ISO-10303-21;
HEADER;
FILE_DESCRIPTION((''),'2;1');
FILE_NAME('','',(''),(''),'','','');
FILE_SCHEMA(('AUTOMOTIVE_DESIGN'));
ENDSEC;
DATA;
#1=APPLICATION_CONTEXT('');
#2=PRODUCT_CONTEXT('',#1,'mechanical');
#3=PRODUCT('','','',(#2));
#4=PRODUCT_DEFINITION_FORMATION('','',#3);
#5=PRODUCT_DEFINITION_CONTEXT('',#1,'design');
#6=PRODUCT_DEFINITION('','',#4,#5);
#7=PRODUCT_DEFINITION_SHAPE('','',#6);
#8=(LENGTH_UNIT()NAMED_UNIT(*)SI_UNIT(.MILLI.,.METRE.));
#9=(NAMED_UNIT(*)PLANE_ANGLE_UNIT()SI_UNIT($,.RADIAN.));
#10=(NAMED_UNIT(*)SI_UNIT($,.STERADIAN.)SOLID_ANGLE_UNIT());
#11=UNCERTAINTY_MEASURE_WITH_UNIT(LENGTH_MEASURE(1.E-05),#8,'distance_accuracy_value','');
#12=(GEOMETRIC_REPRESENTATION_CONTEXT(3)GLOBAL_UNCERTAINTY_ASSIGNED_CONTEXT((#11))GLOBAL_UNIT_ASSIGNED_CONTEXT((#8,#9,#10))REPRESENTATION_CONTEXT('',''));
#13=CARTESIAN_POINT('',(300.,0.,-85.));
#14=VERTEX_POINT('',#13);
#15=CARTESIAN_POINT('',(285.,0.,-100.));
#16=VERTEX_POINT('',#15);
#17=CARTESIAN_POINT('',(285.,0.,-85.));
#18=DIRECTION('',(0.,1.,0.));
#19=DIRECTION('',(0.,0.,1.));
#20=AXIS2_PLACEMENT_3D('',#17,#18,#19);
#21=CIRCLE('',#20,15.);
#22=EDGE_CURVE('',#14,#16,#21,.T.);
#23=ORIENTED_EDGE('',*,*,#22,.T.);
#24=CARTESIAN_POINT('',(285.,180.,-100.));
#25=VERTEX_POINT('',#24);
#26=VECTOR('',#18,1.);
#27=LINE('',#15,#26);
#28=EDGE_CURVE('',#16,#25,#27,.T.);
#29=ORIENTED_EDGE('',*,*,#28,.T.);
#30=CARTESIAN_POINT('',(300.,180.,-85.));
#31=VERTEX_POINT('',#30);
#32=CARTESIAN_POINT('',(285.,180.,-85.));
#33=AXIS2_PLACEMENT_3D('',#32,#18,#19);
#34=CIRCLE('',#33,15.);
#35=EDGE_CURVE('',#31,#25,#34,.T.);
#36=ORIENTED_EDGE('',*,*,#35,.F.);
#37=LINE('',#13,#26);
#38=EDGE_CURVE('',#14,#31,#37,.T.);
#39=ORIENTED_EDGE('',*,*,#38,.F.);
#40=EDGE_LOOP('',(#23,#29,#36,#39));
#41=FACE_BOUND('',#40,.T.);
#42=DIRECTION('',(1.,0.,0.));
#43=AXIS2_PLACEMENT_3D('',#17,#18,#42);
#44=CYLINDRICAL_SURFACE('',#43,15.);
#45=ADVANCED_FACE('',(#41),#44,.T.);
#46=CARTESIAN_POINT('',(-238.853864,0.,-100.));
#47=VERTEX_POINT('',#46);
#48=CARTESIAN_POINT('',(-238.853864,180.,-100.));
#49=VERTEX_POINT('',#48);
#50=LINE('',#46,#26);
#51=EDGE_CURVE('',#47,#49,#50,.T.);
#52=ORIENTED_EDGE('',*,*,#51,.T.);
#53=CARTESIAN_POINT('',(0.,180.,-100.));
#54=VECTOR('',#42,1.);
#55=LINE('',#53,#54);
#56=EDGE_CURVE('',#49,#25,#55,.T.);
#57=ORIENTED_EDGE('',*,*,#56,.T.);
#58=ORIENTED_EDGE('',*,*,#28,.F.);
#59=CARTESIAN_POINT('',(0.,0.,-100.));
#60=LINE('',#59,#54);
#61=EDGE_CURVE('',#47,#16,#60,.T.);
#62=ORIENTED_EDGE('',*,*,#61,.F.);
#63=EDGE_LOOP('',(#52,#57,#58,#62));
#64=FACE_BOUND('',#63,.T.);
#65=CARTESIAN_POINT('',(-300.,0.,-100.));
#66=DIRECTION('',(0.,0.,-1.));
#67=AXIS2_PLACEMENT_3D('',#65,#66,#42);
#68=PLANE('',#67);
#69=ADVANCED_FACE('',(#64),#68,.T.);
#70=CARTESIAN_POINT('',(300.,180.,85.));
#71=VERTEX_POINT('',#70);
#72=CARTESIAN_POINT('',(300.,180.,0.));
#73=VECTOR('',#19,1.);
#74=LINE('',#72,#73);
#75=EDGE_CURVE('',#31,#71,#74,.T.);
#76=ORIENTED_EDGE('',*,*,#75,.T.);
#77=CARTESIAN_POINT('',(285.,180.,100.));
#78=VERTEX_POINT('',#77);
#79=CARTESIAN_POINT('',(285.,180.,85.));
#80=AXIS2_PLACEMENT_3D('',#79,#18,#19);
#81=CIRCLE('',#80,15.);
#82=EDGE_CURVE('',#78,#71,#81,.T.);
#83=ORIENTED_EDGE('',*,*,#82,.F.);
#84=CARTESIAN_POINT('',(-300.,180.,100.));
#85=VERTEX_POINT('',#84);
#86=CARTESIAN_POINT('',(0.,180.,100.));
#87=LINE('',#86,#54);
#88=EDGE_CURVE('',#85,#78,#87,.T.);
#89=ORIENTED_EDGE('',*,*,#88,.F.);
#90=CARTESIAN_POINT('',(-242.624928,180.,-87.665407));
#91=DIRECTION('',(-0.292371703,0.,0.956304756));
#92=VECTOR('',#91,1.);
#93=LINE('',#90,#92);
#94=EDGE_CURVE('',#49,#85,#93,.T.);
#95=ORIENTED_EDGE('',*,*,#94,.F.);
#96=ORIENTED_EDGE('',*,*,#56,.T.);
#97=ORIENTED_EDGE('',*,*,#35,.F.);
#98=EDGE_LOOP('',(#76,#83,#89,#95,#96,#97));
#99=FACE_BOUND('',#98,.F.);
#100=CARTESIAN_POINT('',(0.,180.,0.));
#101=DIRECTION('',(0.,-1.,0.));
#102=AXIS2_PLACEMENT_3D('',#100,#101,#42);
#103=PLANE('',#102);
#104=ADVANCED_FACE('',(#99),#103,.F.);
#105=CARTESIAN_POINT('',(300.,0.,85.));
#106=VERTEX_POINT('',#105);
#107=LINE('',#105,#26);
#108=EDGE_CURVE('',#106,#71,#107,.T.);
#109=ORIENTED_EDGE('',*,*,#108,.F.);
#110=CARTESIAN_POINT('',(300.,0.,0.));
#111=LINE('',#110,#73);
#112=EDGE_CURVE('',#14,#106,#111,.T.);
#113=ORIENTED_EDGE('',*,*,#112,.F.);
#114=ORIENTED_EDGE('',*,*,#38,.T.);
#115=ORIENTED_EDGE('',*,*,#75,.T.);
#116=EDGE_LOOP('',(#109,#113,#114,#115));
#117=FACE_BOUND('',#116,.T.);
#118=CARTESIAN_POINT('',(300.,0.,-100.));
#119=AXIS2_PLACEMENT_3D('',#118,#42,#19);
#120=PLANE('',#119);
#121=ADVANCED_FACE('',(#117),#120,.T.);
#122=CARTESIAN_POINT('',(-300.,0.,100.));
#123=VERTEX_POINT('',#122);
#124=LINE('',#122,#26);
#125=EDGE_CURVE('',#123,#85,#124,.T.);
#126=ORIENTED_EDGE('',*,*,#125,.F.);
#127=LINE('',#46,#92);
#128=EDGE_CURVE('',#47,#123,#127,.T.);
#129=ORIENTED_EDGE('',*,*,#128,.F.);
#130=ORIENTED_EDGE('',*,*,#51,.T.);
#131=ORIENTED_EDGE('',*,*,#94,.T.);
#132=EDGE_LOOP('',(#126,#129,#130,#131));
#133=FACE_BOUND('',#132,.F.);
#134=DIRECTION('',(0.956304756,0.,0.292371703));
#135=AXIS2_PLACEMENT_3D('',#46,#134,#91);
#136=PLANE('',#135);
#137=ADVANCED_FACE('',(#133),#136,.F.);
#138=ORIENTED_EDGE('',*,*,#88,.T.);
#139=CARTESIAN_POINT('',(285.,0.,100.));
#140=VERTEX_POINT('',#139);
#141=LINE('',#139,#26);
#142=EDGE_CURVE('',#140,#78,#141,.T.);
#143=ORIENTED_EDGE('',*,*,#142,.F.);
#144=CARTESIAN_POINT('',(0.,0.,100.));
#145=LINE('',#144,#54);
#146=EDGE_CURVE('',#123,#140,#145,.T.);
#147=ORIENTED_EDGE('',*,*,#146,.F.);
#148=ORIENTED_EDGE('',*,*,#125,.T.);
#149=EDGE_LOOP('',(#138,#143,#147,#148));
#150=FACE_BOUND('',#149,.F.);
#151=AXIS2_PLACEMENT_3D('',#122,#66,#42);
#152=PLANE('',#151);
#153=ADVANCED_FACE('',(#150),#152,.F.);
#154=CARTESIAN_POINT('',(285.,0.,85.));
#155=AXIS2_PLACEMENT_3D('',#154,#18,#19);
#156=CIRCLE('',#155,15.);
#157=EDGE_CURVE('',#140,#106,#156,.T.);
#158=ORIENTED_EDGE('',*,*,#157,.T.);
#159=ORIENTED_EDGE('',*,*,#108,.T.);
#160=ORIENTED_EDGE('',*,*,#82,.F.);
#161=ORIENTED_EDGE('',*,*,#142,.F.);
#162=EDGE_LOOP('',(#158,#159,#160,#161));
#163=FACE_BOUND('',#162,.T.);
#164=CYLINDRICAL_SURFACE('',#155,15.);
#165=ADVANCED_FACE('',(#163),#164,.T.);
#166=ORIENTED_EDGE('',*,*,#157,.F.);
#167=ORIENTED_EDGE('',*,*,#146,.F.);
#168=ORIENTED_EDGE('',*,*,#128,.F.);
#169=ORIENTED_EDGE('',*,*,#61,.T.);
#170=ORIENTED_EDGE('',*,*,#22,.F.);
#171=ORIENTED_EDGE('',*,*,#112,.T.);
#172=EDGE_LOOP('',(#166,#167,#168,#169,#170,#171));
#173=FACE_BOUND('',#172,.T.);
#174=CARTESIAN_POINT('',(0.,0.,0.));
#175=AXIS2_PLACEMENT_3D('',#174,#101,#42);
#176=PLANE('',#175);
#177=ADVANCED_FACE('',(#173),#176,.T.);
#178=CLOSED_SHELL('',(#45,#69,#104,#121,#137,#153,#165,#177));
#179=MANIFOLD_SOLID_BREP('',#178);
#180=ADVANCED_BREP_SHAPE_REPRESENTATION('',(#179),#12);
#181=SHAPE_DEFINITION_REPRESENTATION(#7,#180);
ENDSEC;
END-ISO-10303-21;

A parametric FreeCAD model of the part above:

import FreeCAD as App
import Part
import Sketcher

V = App.Vector
Q = App.Units.Quantity


def edges_at(feature, points):
    """Names of the edges that pass closest to the given points."""
    edges = feature.Shape.Edges
    near = lambda p: min(range(len(edges)), key=lambda i: edges[i].distToShape(Part.Vertex(*p))[0])
    return sorted({f"Edge{near(p) + 1}" for p in points})

doc = App.newDocument("Part")
body = doc.addObject("PartDesign::Body", "Body")

# Sketch on XZ plane
sketch1 = body.newObject("Sketcher::SketchObject", "Sketch")
sketch1.AttachmentSupport = (doc.getObject("XZ_Plane"), [""])
sketch1.MapMode = "FlatFace"
sketch1.addGeometry([
    Part.LineSegment(V(-300, 100, 0), V(-300, -100, 0)),
    Part.LineSegment(V(-300, -100, 0), V(300, -100, 0)),
    Part.LineSegment(V(300, -100, 0), V(300, 100, 0)),
    Part.LineSegment(V(300, 100, 0), V(-300, 100, 0)),
], False)
sketch1.addConstraint([
    Sketcher.Constraint("Coincident", 0, 2, 1, 1),
    Sketcher.Constraint("Coincident", 1, 2, 2, 1),
    Sketcher.Constraint("Coincident", 2, 2, 3, 1),
    Sketcher.Constraint("Coincident", 3, 2, 0, 1),
    Sketcher.Constraint("Vertical", 0),
    Sketcher.Constraint("Horizontal", 1),
    Sketcher.Constraint("Vertical", 2),
    Sketcher.Constraint("Horizontal", 3),
    Sketcher.Constraint("Symmetric", 0, 2, 2, 2, -1, 1),
    Sketcher.Constraint("DistanceX", 1, 1, 1, 2, Q("600 mm")),
    Sketcher.Constraint("DistanceY", 0, 2, 0, 1, Q("200 mm")),
])
pad1 = body.newObject("PartDesign::Pad", "Pad")
pad1.Profile = sketch1
pad1.Length = 180
pad1.Reversed = True

# Sketch on XZ plane
sketch2 = body.newObject("Sketcher::SketchObject", "Sketch001")
sketch2.AttachmentSupport = (doc.getObject("XZ_Plane"), [""])
sketch2.MapMode = "FlatFace"
sketch2.addGeometry([
    Part.LineSegment(V(-239, -100, 0), V(-300, 100, 0)),
    Part.LineSegment(V(-300, 100, 0), V(-300, -100, 0)),
    Part.LineSegment(V(-300, -100, 0), V(-239, -100, 0)),
], False)
sketch2.addConstraint([
    Sketcher.Constraint("Coincident", 0, 2, 1, 1),
    Sketcher.Constraint("Coincident", 1, 2, 2, 1),
    Sketcher.Constraint("Coincident", 2, 2, 0, 1),
    Sketcher.Constraint("Vertical", 1),
    Sketcher.Constraint("Horizontal", 2),
    Sketcher.Constraint("DistanceY", 1, 2, 1, 1, Q("200 mm")),
    Sketcher.Constraint("Angle", 0, Q("107 deg")),
    Sketcher.Constraint("DistanceX", 0, 2, -1, 1, Q("300 mm")),
    Sketcher.Constraint("DistanceY", -1, 1, 0, 2, Q("100 mm")),
])
pocket1 = body.newObject("PartDesign::Pocket", "Pocket")
pocket1.Profile = sketch2
pocket1.Type = "ThroughAll"
doc.recompute()

fillet = body.newObject("PartDesign::Fillet", "Fillet")
fillet.Base = (pocket1, edges_at(pocket1, [(300, 90, 100), (300, 90, -100)]))
fillet.Radius = 15

doc.recompute()
